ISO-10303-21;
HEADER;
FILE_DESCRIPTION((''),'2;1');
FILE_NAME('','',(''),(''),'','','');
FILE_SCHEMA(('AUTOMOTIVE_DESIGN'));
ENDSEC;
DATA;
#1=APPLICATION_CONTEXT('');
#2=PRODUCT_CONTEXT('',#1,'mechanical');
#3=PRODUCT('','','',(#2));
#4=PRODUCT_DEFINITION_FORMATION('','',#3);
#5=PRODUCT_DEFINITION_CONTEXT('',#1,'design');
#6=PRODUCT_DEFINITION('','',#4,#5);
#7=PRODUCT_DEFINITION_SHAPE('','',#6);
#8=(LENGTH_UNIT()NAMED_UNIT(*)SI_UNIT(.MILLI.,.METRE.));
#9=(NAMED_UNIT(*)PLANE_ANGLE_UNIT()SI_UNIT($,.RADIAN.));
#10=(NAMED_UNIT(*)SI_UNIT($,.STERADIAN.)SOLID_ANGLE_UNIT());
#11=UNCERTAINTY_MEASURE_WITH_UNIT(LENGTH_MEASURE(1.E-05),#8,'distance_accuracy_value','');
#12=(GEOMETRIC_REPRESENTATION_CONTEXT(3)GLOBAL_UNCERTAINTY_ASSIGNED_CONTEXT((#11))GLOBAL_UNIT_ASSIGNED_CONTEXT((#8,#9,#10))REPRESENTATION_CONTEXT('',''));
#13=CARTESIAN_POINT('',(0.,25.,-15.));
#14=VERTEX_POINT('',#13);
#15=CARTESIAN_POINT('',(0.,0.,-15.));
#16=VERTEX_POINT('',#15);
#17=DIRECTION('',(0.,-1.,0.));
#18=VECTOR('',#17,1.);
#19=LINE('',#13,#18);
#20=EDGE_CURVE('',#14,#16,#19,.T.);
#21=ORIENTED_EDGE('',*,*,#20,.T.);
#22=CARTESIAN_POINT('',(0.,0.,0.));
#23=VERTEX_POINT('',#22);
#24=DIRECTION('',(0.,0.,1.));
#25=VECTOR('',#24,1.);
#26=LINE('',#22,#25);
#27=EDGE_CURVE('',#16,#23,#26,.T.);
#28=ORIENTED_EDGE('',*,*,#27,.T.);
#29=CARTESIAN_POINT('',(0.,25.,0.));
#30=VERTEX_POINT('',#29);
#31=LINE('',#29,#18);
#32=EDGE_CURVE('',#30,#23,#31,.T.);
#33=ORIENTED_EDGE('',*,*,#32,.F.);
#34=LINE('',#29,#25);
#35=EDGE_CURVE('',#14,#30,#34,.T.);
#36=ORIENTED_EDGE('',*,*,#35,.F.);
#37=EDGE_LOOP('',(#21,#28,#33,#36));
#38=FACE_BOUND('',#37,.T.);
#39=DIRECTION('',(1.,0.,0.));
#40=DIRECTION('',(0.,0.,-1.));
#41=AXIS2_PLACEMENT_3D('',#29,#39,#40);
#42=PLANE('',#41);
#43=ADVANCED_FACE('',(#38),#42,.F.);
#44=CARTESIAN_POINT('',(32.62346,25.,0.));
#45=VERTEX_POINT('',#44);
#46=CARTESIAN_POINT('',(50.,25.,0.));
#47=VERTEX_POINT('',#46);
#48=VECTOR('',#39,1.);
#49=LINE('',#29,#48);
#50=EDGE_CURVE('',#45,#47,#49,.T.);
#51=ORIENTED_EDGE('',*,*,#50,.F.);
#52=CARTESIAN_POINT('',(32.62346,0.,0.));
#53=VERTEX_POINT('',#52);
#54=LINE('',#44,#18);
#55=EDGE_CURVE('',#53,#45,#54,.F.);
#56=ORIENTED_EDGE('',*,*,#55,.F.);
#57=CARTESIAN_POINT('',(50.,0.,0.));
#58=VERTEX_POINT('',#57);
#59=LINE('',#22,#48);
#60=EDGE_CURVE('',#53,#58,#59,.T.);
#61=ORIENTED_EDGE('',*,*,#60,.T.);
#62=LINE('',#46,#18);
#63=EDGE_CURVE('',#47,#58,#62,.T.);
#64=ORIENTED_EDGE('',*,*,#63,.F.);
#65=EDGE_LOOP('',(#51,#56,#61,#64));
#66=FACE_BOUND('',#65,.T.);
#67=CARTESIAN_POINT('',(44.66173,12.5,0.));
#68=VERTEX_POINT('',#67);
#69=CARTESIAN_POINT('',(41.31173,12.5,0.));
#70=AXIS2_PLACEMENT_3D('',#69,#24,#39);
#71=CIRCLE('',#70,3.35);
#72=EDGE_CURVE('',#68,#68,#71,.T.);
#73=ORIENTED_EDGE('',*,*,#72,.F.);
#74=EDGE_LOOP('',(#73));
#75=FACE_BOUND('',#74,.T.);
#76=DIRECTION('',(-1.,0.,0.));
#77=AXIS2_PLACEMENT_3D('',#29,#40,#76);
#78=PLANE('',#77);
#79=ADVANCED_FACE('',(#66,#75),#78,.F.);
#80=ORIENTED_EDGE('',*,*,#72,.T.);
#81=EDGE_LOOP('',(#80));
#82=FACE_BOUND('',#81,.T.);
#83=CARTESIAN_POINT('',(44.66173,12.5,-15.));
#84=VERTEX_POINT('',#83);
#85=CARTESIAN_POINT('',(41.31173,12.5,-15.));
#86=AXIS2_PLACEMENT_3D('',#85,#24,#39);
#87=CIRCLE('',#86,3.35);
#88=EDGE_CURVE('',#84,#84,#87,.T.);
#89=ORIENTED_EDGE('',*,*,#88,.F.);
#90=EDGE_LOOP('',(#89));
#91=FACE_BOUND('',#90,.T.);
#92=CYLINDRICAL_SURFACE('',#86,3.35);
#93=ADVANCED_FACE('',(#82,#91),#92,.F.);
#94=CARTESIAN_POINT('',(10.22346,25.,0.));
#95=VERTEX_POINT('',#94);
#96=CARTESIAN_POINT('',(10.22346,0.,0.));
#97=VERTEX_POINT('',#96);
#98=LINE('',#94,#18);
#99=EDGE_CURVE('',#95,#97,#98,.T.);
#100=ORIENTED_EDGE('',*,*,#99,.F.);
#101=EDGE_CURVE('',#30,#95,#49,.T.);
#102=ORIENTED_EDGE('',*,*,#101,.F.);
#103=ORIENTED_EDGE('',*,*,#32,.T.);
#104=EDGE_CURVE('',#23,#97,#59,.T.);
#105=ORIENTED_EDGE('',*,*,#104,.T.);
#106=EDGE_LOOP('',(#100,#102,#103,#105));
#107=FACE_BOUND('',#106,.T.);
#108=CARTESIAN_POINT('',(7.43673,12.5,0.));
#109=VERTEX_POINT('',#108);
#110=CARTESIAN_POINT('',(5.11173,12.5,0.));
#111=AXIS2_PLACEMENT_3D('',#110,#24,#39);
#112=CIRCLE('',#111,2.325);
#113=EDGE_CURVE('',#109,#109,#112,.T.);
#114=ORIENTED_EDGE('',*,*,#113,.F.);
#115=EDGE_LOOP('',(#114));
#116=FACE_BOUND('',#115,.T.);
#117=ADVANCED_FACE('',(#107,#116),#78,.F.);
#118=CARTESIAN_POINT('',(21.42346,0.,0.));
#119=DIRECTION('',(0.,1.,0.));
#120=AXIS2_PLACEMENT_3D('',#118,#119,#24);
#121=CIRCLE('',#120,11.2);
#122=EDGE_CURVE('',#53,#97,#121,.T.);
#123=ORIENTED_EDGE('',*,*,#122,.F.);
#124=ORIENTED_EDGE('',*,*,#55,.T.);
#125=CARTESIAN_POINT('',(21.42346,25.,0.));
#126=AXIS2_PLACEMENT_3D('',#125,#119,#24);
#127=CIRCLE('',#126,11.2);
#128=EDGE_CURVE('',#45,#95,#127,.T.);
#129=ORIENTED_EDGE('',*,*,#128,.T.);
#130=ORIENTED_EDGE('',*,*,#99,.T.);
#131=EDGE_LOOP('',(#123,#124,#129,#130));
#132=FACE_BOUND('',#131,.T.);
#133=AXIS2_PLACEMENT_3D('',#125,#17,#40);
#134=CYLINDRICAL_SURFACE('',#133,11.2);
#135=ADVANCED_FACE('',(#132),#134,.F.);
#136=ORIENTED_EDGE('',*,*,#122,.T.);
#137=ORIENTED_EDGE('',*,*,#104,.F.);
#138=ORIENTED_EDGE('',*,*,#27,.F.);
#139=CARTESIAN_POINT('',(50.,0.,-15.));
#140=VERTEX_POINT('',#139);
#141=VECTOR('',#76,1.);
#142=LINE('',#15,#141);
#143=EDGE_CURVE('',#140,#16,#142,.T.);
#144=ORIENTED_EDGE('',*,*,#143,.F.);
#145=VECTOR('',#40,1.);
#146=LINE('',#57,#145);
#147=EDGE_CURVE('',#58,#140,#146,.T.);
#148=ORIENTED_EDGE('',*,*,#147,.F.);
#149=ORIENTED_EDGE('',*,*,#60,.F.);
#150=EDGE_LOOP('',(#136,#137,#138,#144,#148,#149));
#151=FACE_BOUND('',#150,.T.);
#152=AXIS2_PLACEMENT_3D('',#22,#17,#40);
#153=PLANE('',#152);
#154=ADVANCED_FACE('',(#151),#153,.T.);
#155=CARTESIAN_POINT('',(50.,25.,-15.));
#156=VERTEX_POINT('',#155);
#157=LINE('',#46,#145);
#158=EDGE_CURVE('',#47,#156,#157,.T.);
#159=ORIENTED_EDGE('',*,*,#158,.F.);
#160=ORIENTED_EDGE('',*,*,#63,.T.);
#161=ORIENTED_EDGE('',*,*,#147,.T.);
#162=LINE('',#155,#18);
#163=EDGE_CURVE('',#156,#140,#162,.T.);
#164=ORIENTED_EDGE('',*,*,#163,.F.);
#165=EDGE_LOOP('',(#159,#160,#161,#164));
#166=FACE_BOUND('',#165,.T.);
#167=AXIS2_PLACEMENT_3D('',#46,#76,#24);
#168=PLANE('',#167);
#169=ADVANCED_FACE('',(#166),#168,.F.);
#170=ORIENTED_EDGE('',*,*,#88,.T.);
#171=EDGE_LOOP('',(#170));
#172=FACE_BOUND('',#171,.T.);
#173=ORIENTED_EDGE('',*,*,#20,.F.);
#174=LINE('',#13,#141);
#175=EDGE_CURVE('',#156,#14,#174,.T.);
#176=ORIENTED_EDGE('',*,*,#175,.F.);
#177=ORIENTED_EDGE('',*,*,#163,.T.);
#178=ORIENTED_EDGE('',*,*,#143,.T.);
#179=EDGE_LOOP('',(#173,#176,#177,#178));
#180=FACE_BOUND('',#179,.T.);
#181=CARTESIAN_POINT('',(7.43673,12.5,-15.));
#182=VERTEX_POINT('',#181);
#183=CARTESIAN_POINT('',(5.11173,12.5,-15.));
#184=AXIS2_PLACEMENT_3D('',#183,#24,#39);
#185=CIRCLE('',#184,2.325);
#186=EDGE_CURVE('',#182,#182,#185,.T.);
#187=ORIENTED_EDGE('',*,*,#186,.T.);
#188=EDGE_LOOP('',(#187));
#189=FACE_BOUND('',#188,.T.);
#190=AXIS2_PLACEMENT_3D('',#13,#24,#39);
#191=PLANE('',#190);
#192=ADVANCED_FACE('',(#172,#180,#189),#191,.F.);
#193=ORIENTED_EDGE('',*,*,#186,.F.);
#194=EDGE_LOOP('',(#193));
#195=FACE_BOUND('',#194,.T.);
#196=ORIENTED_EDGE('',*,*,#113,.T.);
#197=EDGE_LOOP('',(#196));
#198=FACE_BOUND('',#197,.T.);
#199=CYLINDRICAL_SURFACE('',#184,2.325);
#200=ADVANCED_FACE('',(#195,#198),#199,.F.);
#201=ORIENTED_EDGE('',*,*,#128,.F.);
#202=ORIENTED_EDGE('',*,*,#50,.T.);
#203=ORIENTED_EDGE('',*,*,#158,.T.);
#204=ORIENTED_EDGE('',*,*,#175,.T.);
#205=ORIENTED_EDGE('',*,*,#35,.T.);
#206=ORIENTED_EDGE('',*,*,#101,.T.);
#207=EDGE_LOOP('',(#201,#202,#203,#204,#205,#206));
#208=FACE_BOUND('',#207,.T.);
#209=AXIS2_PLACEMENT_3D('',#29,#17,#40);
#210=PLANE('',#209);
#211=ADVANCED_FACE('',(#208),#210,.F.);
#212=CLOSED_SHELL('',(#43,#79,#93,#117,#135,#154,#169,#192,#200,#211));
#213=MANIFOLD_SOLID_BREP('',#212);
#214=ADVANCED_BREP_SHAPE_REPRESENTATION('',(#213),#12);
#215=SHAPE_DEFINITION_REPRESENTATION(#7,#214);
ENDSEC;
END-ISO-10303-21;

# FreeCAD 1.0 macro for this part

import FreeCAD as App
import Part
import Sketcher

doc = App.newDocument("Part")
body = doc.addObject("PartDesign::Body", "Body")

# Sketch on XZ plane
sketch1 = doc.addObject("Sketcher::SketchObject", "Sketch")
body.addObject(sketch1)
sketch1.AttachmentSupport = (doc.XZ_Plane, [""])
sketch1.MapMode = "FlatFace"
sketch1.addGeometry([
    Part.LineSegment(App.Vector(0, -15, 0), App.Vector(0, 0, 0)),
    Part.LineSegment(App.Vector(0, 0, 0), App.Vector(50, 0, 0)),
    Part.LineSegment(App.Vector(50, 0, 0), App.Vector(50, -15, 0)),
    Part.LineSegment(App.Vector(50, -15, 0), App.Vector(0, -15, 0)),
], False)
sketch1.addConstraint([
    Sketcher.Constraint("Coincident", 0, 2, 1, 1),
    Sketcher.Constraint("Coincident", 1, 2, 2, 1),
    Sketcher.Constraint("Coincident", 2, 2, 3, 1),
    Sketcher.Constraint("Coincident", 3, 2, 0, 1),
    Sketcher.Constraint("Vertical", 0),
    Sketcher.Constraint("Horizontal", 1),
    Sketcher.Constraint("Vertical", 2),
    Sketcher.Constraint("Horizontal", 3),
    Sketcher.Constraint("Coincident", 0, 2, -1, 1),
    Sketcher.Constraint("DistanceX", 1, 1, 1, 2, 50.0),
    Sketcher.Constraint("DistanceY", 0, 1, 0, 2, 15.0),
])
pad1 = doc.addObject("PartDesign::Pad", "Pad")
body.addObject(pad1)
pad1.Profile = sketch1
pad1.Length = 25
pad1.Reversed = True

# Sketch on XZ plane
sketch2 = doc.addObject("Sketcher::SketchObject", "Sketch001")
body.addObject(sketch2)
sketch2.AttachmentSupport = (doc.XZ_Plane, [""])
sketch2.MapMode = "FlatFace"
sketch2.addGeometry(Part.Circle(App.Vector(21, 0, 0), App.Vector(0, 0, 1), 11), False)
sketch2.addConstraint([
    Sketcher.Constraint("PointOnObject", 0, 3, -1),
    Sketcher.Constraint("Diameter", 0, 22.4),
    Sketcher.Constraint("DistanceX", -1, 1, 0, 3, 21.42346),
])
pocket1 = doc.addObject("PartDesign::Pocket", "Pocket")
body.addObject(pocket1)
pocket1.Profile = sketch2
pocket1.Type = "ThroughAll"

# Sketch on XY plane
sketch3 = doc.addObject("Sketcher::SketchObject", "Sketch002")
body.addObject(sketch3)
sketch3.AttachmentSupport = (doc.XY_Plane, [""])
sketch3.MapMode = "FlatFace"
sketch3.addGeometry([
    Part.Circle(App.Vector(5.1, 12.5, 0), App.Vector(0, 0, 1), 2.3),
    Part.Circle(App.Vector(41.3, 12.5, 0), App.Vector(0, 0, 1), 3.4),
], False)
sketch3.addConstraint([
    Sketcher.Constraint("Horizontal", 0, 3, 1, 3),
    Sketcher.Constraint("Diameter", 1, 6.7),
    Sketcher.Constraint("Diameter", 0, 4.65),
    Sketcher.Constraint("DistanceY", -1, 1, 0, 3, 12.5),
    Sketcher.Constraint("DistanceX", 0, 3, 1, 3, 36.2),
    Sketcher.Constraint("DistanceX", -1, 1, 0, 3, 5.11173),
])
pocket2 = doc.addObject("PartDesign::Pocket", "Pocket001")
body.addObject(pocket2)
pocket2.Profile = sketch3
pocket2.Type = "ThroughAll"

doc.recompute()
